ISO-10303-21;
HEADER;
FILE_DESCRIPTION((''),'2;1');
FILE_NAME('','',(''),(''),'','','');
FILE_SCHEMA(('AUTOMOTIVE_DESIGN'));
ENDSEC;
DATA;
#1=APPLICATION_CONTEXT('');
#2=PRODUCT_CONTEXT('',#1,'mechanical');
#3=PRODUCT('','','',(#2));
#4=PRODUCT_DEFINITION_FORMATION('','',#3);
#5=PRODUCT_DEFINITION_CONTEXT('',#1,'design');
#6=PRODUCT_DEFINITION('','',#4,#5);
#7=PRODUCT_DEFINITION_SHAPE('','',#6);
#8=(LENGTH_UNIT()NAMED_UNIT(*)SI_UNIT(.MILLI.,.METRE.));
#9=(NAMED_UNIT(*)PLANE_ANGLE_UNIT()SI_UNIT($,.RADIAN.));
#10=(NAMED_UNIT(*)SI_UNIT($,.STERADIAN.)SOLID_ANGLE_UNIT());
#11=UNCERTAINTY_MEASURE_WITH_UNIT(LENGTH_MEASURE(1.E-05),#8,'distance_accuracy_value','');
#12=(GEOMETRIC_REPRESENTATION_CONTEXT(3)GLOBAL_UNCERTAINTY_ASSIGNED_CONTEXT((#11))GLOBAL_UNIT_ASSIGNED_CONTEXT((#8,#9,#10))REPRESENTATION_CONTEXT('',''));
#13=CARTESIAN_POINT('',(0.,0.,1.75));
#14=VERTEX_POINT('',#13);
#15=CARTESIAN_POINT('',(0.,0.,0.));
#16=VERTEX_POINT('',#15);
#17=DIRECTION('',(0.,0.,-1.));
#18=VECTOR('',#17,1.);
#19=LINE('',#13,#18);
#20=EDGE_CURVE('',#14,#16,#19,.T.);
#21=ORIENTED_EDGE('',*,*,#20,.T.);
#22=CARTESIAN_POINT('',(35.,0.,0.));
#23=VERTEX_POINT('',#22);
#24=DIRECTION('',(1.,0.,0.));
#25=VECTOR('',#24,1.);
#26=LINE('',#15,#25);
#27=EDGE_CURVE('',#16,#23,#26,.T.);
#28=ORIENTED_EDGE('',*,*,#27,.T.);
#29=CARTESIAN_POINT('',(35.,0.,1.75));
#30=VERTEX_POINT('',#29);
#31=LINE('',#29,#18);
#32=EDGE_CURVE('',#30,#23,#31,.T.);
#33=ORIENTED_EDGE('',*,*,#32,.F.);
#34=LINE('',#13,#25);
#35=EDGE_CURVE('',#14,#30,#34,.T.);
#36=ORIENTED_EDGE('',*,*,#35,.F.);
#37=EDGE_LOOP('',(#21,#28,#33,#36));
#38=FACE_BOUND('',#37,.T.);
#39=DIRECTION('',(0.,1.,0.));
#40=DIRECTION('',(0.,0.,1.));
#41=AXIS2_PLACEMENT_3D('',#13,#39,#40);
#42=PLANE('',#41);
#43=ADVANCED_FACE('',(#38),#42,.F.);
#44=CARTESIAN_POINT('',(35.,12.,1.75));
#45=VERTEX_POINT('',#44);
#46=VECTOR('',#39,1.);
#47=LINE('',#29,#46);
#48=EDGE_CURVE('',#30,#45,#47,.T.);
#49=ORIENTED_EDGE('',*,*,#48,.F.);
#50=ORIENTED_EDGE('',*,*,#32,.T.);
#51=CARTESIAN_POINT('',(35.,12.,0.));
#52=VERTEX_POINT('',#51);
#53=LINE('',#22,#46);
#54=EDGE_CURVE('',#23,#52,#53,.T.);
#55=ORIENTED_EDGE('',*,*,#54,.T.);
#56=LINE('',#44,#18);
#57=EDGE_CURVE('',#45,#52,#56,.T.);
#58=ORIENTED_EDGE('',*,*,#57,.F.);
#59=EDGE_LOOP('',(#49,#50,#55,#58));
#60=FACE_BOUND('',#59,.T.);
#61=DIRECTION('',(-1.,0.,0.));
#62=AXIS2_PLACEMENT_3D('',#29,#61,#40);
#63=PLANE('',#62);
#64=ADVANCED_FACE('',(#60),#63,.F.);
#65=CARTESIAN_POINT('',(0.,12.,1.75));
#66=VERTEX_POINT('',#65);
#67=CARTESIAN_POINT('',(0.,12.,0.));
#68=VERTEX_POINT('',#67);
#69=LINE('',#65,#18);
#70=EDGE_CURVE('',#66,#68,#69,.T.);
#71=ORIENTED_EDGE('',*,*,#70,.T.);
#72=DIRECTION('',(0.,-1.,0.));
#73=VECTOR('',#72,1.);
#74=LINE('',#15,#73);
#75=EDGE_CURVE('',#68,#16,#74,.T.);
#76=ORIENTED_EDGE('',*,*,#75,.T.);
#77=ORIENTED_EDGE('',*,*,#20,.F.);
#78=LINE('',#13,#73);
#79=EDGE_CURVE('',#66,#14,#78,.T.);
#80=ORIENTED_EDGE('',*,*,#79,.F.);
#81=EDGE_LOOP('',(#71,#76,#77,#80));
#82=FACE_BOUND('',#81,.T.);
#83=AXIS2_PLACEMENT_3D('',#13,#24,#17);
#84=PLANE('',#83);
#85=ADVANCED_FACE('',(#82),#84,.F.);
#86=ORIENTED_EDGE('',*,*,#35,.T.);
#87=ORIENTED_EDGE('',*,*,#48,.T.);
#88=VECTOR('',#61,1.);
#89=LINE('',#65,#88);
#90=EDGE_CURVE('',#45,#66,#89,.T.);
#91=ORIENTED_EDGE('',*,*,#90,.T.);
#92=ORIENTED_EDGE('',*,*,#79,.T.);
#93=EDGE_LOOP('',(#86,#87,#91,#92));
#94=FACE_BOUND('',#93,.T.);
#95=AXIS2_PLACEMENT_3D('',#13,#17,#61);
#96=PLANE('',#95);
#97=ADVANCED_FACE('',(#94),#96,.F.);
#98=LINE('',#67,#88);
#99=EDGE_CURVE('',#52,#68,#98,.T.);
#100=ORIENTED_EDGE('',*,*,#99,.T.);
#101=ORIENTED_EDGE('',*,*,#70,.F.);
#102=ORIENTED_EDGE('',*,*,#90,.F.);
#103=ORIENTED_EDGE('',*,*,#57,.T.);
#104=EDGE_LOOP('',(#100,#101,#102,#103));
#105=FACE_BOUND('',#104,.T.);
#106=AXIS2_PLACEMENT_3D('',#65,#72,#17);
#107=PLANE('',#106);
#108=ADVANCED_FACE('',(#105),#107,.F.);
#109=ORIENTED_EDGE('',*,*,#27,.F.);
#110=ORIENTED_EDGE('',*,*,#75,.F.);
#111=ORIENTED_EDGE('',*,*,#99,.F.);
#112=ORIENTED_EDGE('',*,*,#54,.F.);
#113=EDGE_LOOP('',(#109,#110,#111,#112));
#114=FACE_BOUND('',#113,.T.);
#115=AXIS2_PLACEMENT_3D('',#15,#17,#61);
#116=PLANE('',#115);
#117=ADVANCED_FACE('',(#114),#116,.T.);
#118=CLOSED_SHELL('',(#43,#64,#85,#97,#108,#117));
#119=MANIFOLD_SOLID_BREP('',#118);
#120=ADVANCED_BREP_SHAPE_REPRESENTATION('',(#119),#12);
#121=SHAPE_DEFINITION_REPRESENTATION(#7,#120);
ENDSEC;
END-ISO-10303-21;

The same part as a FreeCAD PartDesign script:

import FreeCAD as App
import Part
import Sketcher

V = App.Vector
Q = App.Units.Quantity

doc = App.newDocument("Part")
body = doc.addObject("PartDesign::Body", "Body")

sketch1 = body.newObject("Sketcher::SketchObject", "Sketch")
sketch1.AttachmentSupport = (doc.getObject("XY_Plane"), [""])
sketch1.MapMode = "FlatFace"
sketch1.addGeometry([
    Part.LineSegment(V(0, 12, 0), V(0, 0, 0)),
    Part.LineSegment(V(0, 0, 0), V(35, 0, 0)),
    Part.LineSegment(V(35, 0, 0), V(35, 12, 0)),
    Part.LineSegment(V(35, 12, 0), V(0, 12, 0)),
], False)
sketch1.addConstraint([
    Sketcher.Constraint("Coincident", 0, 2, 1, 1),
    Sketcher.Constraint("Coincident", 1, 2, 2, 1),
    Sketcher.Constraint("Coincident", 2, 2, 3, 1),
    Sketcher.Constraint("Coincident", 3, 2, 0, 1),
    Sketcher.Constraint("Vertical", 0),
    Sketcher.Constraint("Horizontal", 1),
    Sketcher.Constraint("Vertical", 2),
    Sketcher.Constraint("Horizontal", 3),
    Sketcher.Constraint("Coincident", 0, 2, -1, 1),
    Sketcher.Constraint("DistanceX", 1, 1, 1, 2, Q("35 mm")),
    Sketcher.Constraint("DistanceY", 0, 2, 0, 1, Q("12 mm")),
])
pad1 = body.newObject("PartDesign::Pad", "Pad")
pad1.Profile = sketch1
pad1.Length = 1.75

doc.recompute()
